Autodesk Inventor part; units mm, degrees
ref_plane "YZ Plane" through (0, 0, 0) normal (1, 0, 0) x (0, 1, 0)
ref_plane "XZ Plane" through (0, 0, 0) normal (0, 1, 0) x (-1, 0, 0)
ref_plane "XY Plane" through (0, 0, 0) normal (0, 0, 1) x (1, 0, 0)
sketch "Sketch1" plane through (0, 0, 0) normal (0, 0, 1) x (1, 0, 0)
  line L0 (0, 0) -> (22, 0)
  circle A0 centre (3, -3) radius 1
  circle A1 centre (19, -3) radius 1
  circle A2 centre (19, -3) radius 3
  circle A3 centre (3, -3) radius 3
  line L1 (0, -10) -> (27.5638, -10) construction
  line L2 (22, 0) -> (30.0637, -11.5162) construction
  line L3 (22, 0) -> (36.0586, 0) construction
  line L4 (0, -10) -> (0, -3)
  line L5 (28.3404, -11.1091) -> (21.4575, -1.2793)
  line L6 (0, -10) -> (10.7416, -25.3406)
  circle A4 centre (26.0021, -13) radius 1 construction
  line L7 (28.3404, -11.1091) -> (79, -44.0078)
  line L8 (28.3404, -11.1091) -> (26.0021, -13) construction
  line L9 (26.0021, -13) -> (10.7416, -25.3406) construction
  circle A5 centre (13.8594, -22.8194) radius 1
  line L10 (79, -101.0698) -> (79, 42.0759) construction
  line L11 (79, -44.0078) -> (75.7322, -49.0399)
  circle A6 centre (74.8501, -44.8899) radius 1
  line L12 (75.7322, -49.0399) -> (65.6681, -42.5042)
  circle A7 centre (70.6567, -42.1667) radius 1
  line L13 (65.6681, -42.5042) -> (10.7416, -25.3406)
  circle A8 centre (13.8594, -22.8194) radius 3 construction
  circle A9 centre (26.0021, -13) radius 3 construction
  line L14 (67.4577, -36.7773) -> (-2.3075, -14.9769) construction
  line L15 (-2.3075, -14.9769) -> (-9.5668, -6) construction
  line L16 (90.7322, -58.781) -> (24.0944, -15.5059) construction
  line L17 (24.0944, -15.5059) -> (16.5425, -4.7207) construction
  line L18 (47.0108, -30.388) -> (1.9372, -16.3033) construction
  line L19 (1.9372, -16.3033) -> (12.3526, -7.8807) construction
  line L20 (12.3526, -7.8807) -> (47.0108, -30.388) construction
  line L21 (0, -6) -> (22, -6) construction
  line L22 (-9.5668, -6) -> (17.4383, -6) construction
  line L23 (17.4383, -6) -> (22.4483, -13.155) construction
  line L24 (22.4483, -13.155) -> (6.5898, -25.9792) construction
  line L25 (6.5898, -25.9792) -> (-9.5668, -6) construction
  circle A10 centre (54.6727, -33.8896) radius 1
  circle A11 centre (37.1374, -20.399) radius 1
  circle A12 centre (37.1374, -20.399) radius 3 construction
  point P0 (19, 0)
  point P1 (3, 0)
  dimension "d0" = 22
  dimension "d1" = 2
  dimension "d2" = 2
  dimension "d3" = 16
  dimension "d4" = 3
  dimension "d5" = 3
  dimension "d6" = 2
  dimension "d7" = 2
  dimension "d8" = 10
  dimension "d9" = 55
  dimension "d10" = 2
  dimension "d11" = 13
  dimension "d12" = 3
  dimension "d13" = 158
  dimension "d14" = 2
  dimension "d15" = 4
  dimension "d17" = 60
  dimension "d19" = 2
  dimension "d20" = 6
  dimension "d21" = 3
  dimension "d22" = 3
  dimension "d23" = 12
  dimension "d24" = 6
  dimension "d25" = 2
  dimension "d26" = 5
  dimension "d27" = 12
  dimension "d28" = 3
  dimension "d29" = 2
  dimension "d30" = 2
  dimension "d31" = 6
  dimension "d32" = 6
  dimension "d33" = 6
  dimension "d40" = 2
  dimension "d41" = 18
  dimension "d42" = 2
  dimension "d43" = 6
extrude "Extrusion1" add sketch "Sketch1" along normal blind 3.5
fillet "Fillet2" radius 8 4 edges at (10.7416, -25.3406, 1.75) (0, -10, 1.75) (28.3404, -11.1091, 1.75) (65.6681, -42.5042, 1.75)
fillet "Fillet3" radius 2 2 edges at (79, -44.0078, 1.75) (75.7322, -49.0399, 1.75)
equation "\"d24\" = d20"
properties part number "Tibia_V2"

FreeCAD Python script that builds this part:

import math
import FreeCAD as App
import Part
import Sketcher
Q = App.Units.Quantity


def edges_at(feature, points):
    """Names of the edges that pass closest to the given points."""
    edges = feature.Shape.Edges
    near = lambda p: min(range(len(edges)), key=lambda i: edges[i].distToShape(Part.Vertex(*p))[0])
    return sorted({f"Edge{near(p) + 1}" for p in points})

doc = App.newDocument("Part")
params = doc.addObject("Spreadsheet::Sheet", "Params")
for row, (alias, value) in enumerate([
    ("sketch1_diameter", "2 mm"),
    ("sketch1_radius", "3 mm"),
    ("sketch1_width", "16 mm"),
    ("sketch1_length", "12 mm"),
    ("sketch1_length2", "6 mm"),
    ("pad1_length", "3.5 mm"),
    ("fillet_radius", "8 mm"),
    ("fillet2_radius", "2 mm"),
], start=1):
    params.set(f"A{row}", alias)
    params.set(f"B{row}", "=" + value)
    params.setAlias(f"B{row}", alias)

body = doc.addObject("PartDesign::Body", "Body")

# Sketch on XY plane
sketch1 = body.newObject("Sketcher::SketchObject", "Sketch")
sketch1.AttachmentSupport = (doc.getObject("XY_Plane"), [""])
sketch1.MapMode = "FlatFace"
sketch1.addGeometry(Part.LineSegment(App.Vector(19, 0, 0), App.Vector(3, 0, 0)), False)
sketch1.addGeometry(Part.ArcOfCircle(Part.Circle(App.Vector(3, -3, 0), App.Vector(0, 0, 1), 3), math.radians(90), math.radians(180)), False)
sketch1.addGeometry(Part.LineSegment(App.Vector(0, -3, 0), App.Vector(0, -10, 0)), False)
sketch1.addGeometry(Part.LineSegment(App.Vector(0, -10, 0), App.Vector(10.7416, -25.3406, 0)), False)
sketch1.addGeometry(Part.LineSegment(App.Vector(10.7416, -25.3406, 0), App.Vector(65.6681, -42.5042, 0)), False)
sketch1.addGeometry(Part.LineSegment(App.Vector(65.6681, -42.5042, 0), App.Vector(75.7322, -49.0399, 0)), False)
sketch1.addGeometry(Part.LineSegment(App.Vector(75.7322, -49.0399, 0), App.Vector(79, -44.0078, 0)), False)
sketch1.addGeometry(Part.LineSegment(App.Vector(79, -44.0078, 0), App.Vector(28.3404, -11.1091, 0)), False)
sketch1.addGeometry(Part.LineSegment(App.Vector(28.3404, -11.1091, 0), App.Vector(21.4575, -1.2793, 0)), False)
sketch1.addGeometry(Part.ArcOfCircle(Part.Circle(App.Vector(19, -3, 0), App.Vector(0, 0, 1), 3), math.radians(34.999061), math.radians(90)), False)
sketch1.addGeometry(Part.Circle(App.Vector(74.8501, -44.8899, 0), App.Vector(0, 0, 1), 1), False)
sketch1.addGeometry(Part.Circle(App.Vector(70.6567, -42.1667, 0), App.Vector(0, 0, 1), 1), False)
sketch1.addGeometry(Part.Circle(App.Vector(54.6727, -33.8896, 0), App.Vector(0, 0, 1), 1), False)
sketch1.addGeometry(Part.Circle(App.Vector(13.8594, -22.8194, 0), App.Vector(0, 0, 1), 1), False)
sketch1.addGeometry(Part.Circle(App.Vector(37.1374, -20.399, 0), App.Vector(0, 0, 1), 1), False)
sketch1.addGeometry(Part.Circle(App.Vector(19, -3, 0), App.Vector(0, 0, 1), 1), False)
sketch1.addGeometry(Part.Circle(App.Vector(3, -3, 0), App.Vector(0, 0, 1), 1), False)
sketch1.addConstraint(Sketcher.Constraint("Tangent", 0, 2, 1, 1))
sketch1.addConstraint(Sketcher.Constraint("Tangent", 1, 2, 2, 1))
sketch1.addConstraint(Sketcher.Constraint("Coincident", 2, 2, 3, 1))
sketch1.addConstraint(Sketcher.Constraint("Coincident", 3, 2, 4, 1))
sketch1.addConstraint(Sketcher.Constraint("Coincident", 4, 2, 5, 1))
sketch1.addConstraint(Sketcher.Constraint("Coincident", 5, 2, 6, 1))
sketch1.addConstraint(Sketcher.Constraint("Coincident", 6, 2, 7, 1))
sketch1.addConstraint(Sketcher.Constraint("Coincident", 7, 2, 8, 1))
sketch1.addConstraint(Sketcher.Constraint("Tangent", 8, 2, 9, 1))
sketch1.addConstraint(Sketcher.Constraint("Tangent", 9, 2, 0, 1))
sketch1.addConstraint(Sketcher.Constraint("Horizontal", 0))
sketch1.addConstraint(Sketcher.Constraint("Vertical", 2))
sketch1.addConstraint(Sketcher.Constraint("Coincident", 15, 3, 9, 3))
sketch1.addConstraint(Sketcher.Constraint("Coincident", 16, 3, 1, 3))
sketch1.addConstraint(Sketcher.Constraint("Equal", 1, 9))
sketch1.addConstraint(Sketcher.Constraint("Equal", 10, 11))
sketch1.addConstraint(Sketcher.Constraint("Equal", 11, 12))
sketch1.addConstraint(Sketcher.Constraint("Equal", 12, 13))
sketch1.addConstraint(Sketcher.Constraint("Equal", 13, 14))
sketch1.addConstraint(Sketcher.Constraint("Equal", 14, 15))
sketch1.addConstraint(Sketcher.Constraint("Equal", 15, 16))
sketch1.addConstraint(Sketcher.Constraint("PointOnObject", 0, 2, -1))
sketch1.addConstraint(Sketcher.Constraint("PointOnObject", 1, 2, -2))
sketch1.addConstraint(Sketcher.Constraint("Perpendicular", 5, 6))
sketch1.addConstraint(Sketcher.Constraint("Perpendicular", 6, 7))
sketch1.addConstraint(Sketcher.Constraint("Parallel", 3, 8))
sketch1.addConstraint(Sketcher.Constraint("Equal", 5, 8))
sketch1.addConstraint(Sketcher.Constraint("Diameter", 10, Q("2 mm")))
sketch1.addConstraint(Sketcher.Constraint("Radius", 1, Q("3 mm")))
sketch1.addConstraint(Sketcher.Constraint("DistanceX", 0, 2, 0, 1, Q("16 mm")))
sketch1.addConstraint(Sketcher.Constraint("Angle", 3, Q("-55 deg")))
sketch1.addConstraint(Sketcher.Constraint("Distance", 5, Q("12 mm")))
sketch1.addConstraint(Sketcher.Constraint("Distance", 6, Q("6 mm")))
sketch1.addConstraint(Sketcher.Constraint("DistanceY", 2, 2, -1, 1, Q("10 mm")))
sketch1.addConstraint(Sketcher.Constraint("Angle", 5, Q("-33 deg")))
sketch1.addConstraint(Sketcher.Constraint("DistanceX", -1, 1, 6, 2, Q("79 mm")))
sketch1.addConstraint(Sketcher.Constraint("DistanceX", -1, 1, 10, 3, Q("74.85 mm")))
sketch1.addConstraint(Sketcher.Constraint("DistanceY", 10, 3, -1, 1, Q("44.89 mm")))
sketch1.addConstraint(Sketcher.Constraint("DistanceY", 14, 3, 7, 2, Q("9.29 mm")))
sketch1.addConstraint(Sketcher.Constraint("DistanceX", 12, 3, 11, 3, Q("15.984 mm")))
sketch1.addConstraint(Sketcher.Constraint("DistanceY", 11, 3, 12, 3, Q("8.277 mm")))
sketch1.addConstraint(Sketcher.Constraint("DistanceX", 13, 3, 14, 3, Q("23.278 mm")))
sketch1.addConstraint(Sketcher.Constraint("DistanceY", 6, 2, 11, 3, Q("1.841 mm")))
sketch1.addConstraint(Sketcher.Constraint("DistanceX", 7, 2, 14, 3, Q("8.797 mm")))
sketch1.addConstraint(Sketcher.Constraint("Distance", 3, Q("18.7274 mm")))
sketch1.addConstraint(Sketcher.Constraint("DistanceX", -1, 1, 11, 3, Q("70.6567 mm")))
sketch1.addConstraint(Sketcher.Constraint("DistanceY", 13, 3, -1, 1, Q("22.8194 mm")))
sketch1.setExpression("Constraints[27]", "Params.sketch1_diameter")
sketch1.setExpression("Constraints[28]", "Params.sketch1_radius")
sketch1.setExpression("Constraints[29]", "Params.sketch1_width")
sketch1.setExpression("Constraints[31]", "Params.sketch1_length")
sketch1.setExpression("Constraints[32]", "Params.sketch1_length2")
pad1 = body.newObject("PartDesign::Pad", "Pad")
pad1.Profile = sketch1
pad1.setExpression("Length", "Params.pad1_length")
doc.recompute()

fillet = body.newObject("PartDesign::Fillet", "Fillet")
fillet.Base = (pad1, edges_at(pad1, [
    (10.742, -25.341, 1.75),
    (0, -10, 1.75),
    (28.34, -11.109, 1.75),
    (65.668, -42.504, 1.75),
]))
fillet.setExpression("Radius", "Params.fillet_radius")
doc.recompute()

fillet2 = body.newObject("PartDesign::Fillet", "Fillet001")
fillet2.Base = (fillet, edges_at(fillet, [(79, -44.008, 1.75), (75.732, -49.04, 1.75)]))
fillet2.setExpression("Radius", "Params.fillet2_radius")

doc.recompute()
